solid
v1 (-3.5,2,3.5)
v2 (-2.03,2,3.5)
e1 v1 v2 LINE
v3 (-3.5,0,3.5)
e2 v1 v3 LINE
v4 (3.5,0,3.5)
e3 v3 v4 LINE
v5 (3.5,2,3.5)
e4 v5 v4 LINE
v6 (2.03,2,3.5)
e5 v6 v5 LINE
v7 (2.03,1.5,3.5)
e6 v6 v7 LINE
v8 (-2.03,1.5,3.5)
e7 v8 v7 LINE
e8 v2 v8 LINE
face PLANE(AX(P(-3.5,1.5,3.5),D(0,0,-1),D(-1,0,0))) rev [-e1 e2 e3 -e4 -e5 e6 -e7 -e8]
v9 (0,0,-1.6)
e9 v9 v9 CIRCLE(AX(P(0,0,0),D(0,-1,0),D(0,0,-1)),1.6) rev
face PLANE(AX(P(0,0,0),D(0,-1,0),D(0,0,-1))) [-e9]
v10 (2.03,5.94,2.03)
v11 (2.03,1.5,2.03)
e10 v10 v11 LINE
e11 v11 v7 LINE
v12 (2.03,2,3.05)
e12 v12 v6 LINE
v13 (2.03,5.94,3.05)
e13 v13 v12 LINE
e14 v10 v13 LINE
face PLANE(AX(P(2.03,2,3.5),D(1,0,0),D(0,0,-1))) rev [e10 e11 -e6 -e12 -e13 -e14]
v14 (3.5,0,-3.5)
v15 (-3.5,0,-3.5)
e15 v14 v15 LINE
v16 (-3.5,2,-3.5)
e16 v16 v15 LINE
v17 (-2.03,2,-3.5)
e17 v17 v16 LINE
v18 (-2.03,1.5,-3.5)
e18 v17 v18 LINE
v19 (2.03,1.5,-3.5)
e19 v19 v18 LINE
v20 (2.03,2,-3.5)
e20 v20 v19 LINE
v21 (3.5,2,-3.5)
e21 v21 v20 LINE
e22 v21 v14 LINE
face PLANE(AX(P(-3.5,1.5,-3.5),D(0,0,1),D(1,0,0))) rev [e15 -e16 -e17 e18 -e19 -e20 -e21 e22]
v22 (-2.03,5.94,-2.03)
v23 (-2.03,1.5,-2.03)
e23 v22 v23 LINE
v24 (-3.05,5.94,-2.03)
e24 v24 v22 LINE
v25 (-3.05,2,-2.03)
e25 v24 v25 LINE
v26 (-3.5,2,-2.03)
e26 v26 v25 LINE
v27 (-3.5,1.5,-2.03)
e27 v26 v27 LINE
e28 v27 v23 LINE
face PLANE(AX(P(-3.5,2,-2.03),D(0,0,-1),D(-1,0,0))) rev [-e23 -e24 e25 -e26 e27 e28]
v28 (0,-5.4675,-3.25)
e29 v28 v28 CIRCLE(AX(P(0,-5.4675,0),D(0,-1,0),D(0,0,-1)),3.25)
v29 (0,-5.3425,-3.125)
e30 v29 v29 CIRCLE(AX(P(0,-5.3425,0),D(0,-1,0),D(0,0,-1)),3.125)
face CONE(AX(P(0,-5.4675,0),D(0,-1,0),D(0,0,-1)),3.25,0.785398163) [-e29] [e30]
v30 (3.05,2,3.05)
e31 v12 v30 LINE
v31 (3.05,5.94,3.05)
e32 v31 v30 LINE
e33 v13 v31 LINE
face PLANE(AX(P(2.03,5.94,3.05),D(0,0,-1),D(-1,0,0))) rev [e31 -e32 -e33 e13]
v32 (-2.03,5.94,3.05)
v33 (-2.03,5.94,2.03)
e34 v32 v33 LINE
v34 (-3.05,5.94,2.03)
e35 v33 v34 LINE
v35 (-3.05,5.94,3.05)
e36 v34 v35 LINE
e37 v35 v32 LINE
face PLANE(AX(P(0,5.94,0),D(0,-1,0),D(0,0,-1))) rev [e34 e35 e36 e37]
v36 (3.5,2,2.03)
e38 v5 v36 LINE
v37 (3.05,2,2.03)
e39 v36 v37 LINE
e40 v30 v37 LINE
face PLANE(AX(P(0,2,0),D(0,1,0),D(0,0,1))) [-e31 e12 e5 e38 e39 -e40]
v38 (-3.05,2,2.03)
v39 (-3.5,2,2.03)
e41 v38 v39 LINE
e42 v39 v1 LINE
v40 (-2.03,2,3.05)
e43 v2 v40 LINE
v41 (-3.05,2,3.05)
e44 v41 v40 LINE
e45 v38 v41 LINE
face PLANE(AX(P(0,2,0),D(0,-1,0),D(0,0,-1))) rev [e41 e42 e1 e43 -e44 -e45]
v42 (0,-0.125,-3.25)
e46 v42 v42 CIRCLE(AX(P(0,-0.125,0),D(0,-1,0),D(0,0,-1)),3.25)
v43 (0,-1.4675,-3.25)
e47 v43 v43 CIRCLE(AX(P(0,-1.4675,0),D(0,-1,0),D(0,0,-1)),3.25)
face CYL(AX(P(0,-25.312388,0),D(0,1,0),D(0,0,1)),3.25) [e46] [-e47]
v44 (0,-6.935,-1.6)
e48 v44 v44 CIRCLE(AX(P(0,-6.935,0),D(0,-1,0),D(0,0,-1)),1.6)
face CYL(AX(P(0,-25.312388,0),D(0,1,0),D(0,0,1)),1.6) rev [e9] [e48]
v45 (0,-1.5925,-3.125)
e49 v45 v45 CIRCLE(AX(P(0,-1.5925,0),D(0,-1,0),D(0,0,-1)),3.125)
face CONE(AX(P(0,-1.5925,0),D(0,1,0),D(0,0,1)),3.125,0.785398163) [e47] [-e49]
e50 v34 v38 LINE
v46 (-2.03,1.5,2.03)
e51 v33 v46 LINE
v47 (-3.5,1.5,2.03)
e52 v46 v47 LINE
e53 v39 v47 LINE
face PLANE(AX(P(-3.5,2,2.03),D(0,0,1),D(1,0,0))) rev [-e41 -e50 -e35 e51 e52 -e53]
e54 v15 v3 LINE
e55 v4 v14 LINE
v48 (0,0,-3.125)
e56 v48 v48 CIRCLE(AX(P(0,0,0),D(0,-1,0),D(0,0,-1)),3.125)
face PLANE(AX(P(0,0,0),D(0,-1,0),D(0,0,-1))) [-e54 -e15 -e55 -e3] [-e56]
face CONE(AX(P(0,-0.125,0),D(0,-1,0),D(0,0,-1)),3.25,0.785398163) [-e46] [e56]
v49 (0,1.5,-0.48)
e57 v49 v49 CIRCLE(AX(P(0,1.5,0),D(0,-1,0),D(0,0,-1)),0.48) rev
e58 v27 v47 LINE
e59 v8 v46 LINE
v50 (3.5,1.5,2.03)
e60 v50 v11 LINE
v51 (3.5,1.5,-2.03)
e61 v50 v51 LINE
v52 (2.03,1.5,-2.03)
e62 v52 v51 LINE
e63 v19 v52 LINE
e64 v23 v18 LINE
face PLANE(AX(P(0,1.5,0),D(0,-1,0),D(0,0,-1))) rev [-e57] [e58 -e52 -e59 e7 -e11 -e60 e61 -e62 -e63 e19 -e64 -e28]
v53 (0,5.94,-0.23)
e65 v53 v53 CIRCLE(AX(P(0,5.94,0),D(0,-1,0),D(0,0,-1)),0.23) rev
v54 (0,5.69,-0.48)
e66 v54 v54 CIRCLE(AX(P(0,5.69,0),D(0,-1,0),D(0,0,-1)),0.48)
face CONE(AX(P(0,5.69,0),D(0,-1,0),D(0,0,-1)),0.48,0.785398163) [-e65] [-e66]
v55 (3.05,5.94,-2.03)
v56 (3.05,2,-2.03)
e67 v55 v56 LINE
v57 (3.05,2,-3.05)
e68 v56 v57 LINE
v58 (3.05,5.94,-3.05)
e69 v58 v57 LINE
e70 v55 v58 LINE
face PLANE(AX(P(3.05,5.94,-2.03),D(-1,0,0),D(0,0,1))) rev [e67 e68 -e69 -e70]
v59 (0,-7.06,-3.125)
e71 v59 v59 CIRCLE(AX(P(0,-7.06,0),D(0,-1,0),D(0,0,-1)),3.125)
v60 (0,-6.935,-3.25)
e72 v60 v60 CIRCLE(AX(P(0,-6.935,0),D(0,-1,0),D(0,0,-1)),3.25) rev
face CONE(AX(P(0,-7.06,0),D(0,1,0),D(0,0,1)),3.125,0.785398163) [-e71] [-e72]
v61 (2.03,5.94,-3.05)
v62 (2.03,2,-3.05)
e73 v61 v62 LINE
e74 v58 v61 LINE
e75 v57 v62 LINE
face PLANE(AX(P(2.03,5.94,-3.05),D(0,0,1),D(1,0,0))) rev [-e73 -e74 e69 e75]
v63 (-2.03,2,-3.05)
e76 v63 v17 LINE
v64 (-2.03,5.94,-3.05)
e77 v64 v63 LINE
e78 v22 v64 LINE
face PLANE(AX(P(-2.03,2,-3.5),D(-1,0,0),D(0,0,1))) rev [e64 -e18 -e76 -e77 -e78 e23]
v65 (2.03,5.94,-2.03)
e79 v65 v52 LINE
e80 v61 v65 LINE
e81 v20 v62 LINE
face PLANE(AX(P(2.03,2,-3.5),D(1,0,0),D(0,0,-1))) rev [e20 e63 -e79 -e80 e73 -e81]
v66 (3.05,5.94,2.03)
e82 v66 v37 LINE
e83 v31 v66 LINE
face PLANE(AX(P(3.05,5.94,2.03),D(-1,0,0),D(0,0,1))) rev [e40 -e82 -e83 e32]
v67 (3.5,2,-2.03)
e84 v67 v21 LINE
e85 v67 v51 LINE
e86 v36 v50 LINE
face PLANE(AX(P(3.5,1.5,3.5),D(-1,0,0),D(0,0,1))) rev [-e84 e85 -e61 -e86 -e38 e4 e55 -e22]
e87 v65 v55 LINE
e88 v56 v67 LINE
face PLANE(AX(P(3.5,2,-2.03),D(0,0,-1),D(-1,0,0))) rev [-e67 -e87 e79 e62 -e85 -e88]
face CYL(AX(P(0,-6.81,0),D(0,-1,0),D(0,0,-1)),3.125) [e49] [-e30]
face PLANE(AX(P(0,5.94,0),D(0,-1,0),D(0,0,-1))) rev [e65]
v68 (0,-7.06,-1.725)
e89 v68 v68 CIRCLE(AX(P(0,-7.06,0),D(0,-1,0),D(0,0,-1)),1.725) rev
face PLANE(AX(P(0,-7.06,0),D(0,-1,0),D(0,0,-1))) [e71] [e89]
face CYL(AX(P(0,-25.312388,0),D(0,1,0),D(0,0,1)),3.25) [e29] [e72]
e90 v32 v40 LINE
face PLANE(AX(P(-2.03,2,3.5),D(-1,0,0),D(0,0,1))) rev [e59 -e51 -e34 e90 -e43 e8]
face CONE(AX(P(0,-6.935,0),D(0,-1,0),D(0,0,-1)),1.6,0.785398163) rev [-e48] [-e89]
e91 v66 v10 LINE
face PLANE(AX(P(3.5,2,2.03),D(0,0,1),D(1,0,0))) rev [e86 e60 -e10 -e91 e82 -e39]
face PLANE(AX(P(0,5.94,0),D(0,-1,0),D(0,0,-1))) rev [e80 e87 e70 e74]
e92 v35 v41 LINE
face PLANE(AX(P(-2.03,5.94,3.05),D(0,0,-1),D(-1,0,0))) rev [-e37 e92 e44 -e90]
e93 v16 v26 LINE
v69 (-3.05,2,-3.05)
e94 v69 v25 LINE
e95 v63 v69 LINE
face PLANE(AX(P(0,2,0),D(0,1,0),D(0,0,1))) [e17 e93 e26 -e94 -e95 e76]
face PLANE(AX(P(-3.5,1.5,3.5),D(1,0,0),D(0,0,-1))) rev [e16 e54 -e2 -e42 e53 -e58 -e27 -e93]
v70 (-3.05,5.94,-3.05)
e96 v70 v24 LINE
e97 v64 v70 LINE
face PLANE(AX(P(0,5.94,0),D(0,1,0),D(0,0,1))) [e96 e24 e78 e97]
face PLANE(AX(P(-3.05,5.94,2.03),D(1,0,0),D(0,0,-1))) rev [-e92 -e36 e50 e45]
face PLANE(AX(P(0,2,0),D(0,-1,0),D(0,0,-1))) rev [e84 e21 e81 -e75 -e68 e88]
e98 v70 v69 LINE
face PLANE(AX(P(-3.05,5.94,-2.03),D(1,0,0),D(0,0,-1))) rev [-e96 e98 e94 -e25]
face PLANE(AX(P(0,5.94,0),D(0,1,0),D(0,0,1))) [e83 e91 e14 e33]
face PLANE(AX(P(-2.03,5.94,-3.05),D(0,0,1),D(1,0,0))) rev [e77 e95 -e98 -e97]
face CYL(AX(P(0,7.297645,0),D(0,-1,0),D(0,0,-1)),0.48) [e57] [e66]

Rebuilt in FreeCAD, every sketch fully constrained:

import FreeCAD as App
import Part
import Sketcher

V = App.Vector
Q = App.Units.Quantity


def edges_at(feature, points):
    """Names of the edges that pass closest to the given points."""
    edges = feature.Shape.Edges
    near = lambda p: min(range(len(edges)), key=lambda i: edges[i].distToShape(Part.Vertex(*p))[0])
    return sorted({f"Edge{near(p) + 1}" for p in points})

doc = App.newDocument("Part")
params = doc.addObject("Spreadsheet::Sheet", "Params")
for row, (alias, value) in enumerate([
    ("sketch1_width", "7 mm"),
    ("pad1_length", "1.5 mm"),
    ("sketch2_width", "1.47 mm"),
    ("pad2_length", "0.5 mm"),
    ("sketch3_width", "1.02 mm"),
    ("pad3_length", "3.94 mm"),
    ("sketch4_diameter", "6.5 mm"),
    ("sketch4_diameter2", "3.2 mm"),
    ("pad4_length", "7.06 mm"),
    ("chamfer_size", "0.125 mm"),
    ("sketch5_height", "4 mm"),
    ("sketch5_height2", "3.75 mm"),
    ("groove_angle", "360 deg"),
    ("sketch6_diameter", "0.96 mm"),
    ("pad5_length", "4.44 mm"),
    ("chamfer2_size", "0.25 mm"),
], start=1):
    params.set(f"A{row}", alias)
    params.set(f"B{row}", "=" + value)
    params.setAlias(f"B{row}", alias)

body = doc.addObject("PartDesign::Body", "Body")

sketch1 = body.newObject("Sketcher::SketchObject", "Sketch")
sketch1.AttachmentSupport = (doc.getObject("XZ_Plane"), [""])
sketch1.MapMode = "FlatFace"
sketch1.addGeometry([
    Part.LineSegment(V(-4, -4, 0), V(-4, 4, 0)),
    Part.LineSegment(V(-4, 4, 0), V(4, 4, 0)),
    Part.LineSegment(V(4, 4, 0), V(4, -4, 0)),
    Part.LineSegment(V(4, -4, 0), V(-4, -4, 0)),
], False)
sketch1.addConstraint([
    Sketcher.Constraint("Coincident", 0, 2, 1, 1),
    Sketcher.Constraint("Coincident", 1, 2, 2, 1),
    Sketcher.Constraint("Coincident", 2, 2, 3, 1),
    Sketcher.Constraint("Coincident", 3, 2, 0, 1),
    Sketcher.Constraint("Vertical", 0),
    Sketcher.Constraint("Horizontal", 1),
    Sketcher.Constraint("Vertical", 2),
    Sketcher.Constraint("Horizontal", 3),
    Sketcher.Constraint("Symmetric", 0, 2, 2, 2, -1, 1),
    Sketcher.Constraint("Equal", 3, 0),
    Sketcher.Constraint("DistanceX", 1, 1, 1, 2, Q("7 mm")),
])
sketch1.setExpression("Constraints[10]", "Params.sketch1_width")
pad1 = body.newObject("PartDesign::Pad", "Pad")
pad1.Profile = sketch1
pad1.setExpression("Length", "Params.pad1_length")
pad1.Reversed = True

sketch2 = body.newObject("Sketcher::SketchObject", "Sketch001")
sketch2.AttachmentSupport = (doc.getObject("XZ_Plane"), [""])
sketch2.MapMode = "FlatFace"
sketch2.AttachmentOffset = App.Placement(V(0, 0, -1.5), App.Rotation())
sketch2.addGeometry([
    Part.LineSegment(V(-3.5, -3.5, 0), V(-3.5, -2, 0)),
    Part.LineSegment(V(-3.5, -2, 0), V(-2, -2, 0)),
    Part.LineSegment(V(-2, -2, 0), V(-2, -3.5, 0)),
    Part.LineSegment(V(-2, -3.5, 0), V(-3.5, -3.5, 0)),
    Part.LineSegment(V(2, -3.5, 0), V(2, -2, 0)),
    Part.LineSegment(V(2, -2, 0), V(3.5, -2, 0)),
    Part.LineSegment(V(3.5, -2, 0), V(3.5, -3.5, 0)),
    Part.LineSegment(V(3.5, -3.5, 0), V(2, -3.5, 0)),
    Part.LineSegment(V(2, 2, 0), V(2, 3.5, 0)),
    Part.LineSegment(V(2, 3.5, 0), V(3.5, 3.5, 0)),
    Part.LineSegment(V(3.5, 3.5, 0), V(3.5, 2, 0)),
    Part.LineSegment(V(3.5, 2, 0), V(2, 2, 0)),
    Part.LineSegment(V(-3.5, 2, 0), V(-3.5, 3.5, 0)),
    Part.LineSegment(V(-3.5, 3.5, 0), V(-2, 3.5, 0)),
    Part.LineSegment(V(-2, 3.5, 0), V(-2, 2, 0)),
    Part.LineSegment(V(-2, 2, 0), V(-3.5, 2, 0)),
], False)
sketch2.addConstraint([
    Sketcher.Constraint("Coincident", 0, 2, 1, 1),
    Sketcher.Constraint("Coincident", 1, 2, 2, 1),
    Sketcher.Constraint("Coincident", 2, 2, 3, 1),
    Sketcher.Constraint("Coincident", 3, 2, 0, 1),
    Sketcher.Constraint("Coincident", 4, 2, 5, 1),
    Sketcher.Constraint("Coincident", 5, 2, 6, 1),
    Sketcher.Constraint("Coincident", 6, 2, 7, 1),
    Sketcher.Constraint("Coincident", 7, 2, 4, 1),
    Sketcher.Constraint("Coincident", 8, 2, 9, 1),
    Sketcher.Constraint("Coincident", 9, 2, 10, 1),
    Sketcher.Constraint("Coincident", 10, 2, 11, 1),
    Sketcher.Constraint("Coincident", 11, 2, 8, 1),
    Sketcher.Constraint("Coincident", 12, 2, 13, 1),
    Sketcher.Constraint("Coincident", 13, 2, 14, 1),
    Sketcher.Constraint("Coincident", 14, 2, 15, 1),
    Sketcher.Constraint("Coincident", 15, 2, 12, 1),
    Sketcher.Constraint("Vertical", 0),
    Sketcher.Constraint("Horizontal", 1),
    Sketcher.Constraint("Vertical", 2),
    Sketcher.Constraint("Horizontal", 3),
    Sketcher.Constraint("Vertical", 4),
    Sketcher.Constraint("Horizontal", 5),
    Sketcher.Constraint("Vertical", 6),
    Sketcher.Constraint("Horizontal", 7),
    Sketcher.Constraint("Vertical", 8),
    Sketcher.Constraint("Horizontal", 9),
    Sketcher.Constraint("Vertical", 10),
    Sketcher.Constraint("Horizontal", 11),
    Sketcher.Constraint("Vertical", 12),
    Sketcher.Constraint("Horizontal", 13),
    Sketcher.Constraint("Vertical", 14),
    Sketcher.Constraint("Horizontal", 15),
    Sketcher.Constraint("Symmetric", 2, 2, 8, 2, -1, 1),
    Sketcher.Constraint("Symmetric", 0, 2, 10, 2, -1, 1),
    Sketcher.Constraint("Symmetric", 6, 2, 12, 2, -1, 1),
    Sketcher.Constraint("Symmetric", 4, 2, 14, 2, -1, 1),
    Sketcher.Constraint("Symmetric", 1, 2, 4, 2, -2),
    Sketcher.Constraint("Symmetric", 3, 2, 6, 2, -2),
    Sketcher.Constraint("Equal", 15, 0),
    Sketcher.Constraint("DistanceX", 0, 2, 5, 2, Q("7 mm")),
    Sketcher.Constraint("DistanceY", 7, 2, 8, 2, Q("7 mm")),
    Sketcher.Constraint("DistanceX", 1, 1, 1, 2, Q("1.47 mm")),
])
sketch2.setExpression("Constraints[41]", "Params.sketch2_width")
pad2 = body.newObject("PartDesign::Pad", "Pad001")
pad2.Profile = sketch2
pad2.setExpression("Length", "Params.pad2_length")
pad2.Reversed = True

sketch3 = body.newObject("Sketcher::SketchObject", "Sketch002")
sketch3.AttachmentSupport = (doc.getObject("XZ_Plane"), [""])
sketch3.MapMode = "FlatFace"
sketch3.AttachmentOffset = App.Placement(V(0, 0, -2), App.Rotation())
sketch3.addGeometry([
    Part.LineSegment(V(-3, 2, 0), V(-3, 3, 0)),
    Part.LineSegment(V(-3, 3, 0), V(-2, 3, 0)),
    Part.LineSegment(V(-2, 3, 0), V(-2, 2, 0)),
    Part.LineSegment(V(-2, 2, 0), V(-3, 2, 0)),
    Part.LineSegment(V(2, 2, 0), V(2, 3, 0)),
    Part.LineSegment(V(2, 3, 0), V(3, 3, 0)),
    Part.LineSegment(V(3, 3, 0), V(3, 2, 0)),
    Part.LineSegment(V(3, 2, 0), V(2, 2, 0)),
    Part.LineSegment(V(2, -3, 0), V(2, -2, 0)),
    Part.LineSegment(V(2, -2, 0), V(3, -2, 0)),
    Part.LineSegment(V(3, -2, 0), V(3, -3, 0)),
    Part.LineSegment(V(3, -3, 0), V(2, -3, 0)),
    Part.LineSegment(V(-3, -3, 0), V(-3, -2, 0)),
    Part.LineSegment(V(-3, -2, 0), V(-2, -2, 0)),
    Part.LineSegment(V(-2, -2, 0), V(-2, -3, 0)),
    Part.LineSegment(V(-2, -3, 0), V(-3, -3, 0)),
], False)
sketch3.addConstraint([
    Sketcher.Constraint("Coincident", 0, 2, 1, 1),
    Sketcher.Constraint("Coincident", 1, 2, 2, 1),
    Sketcher.Constraint("Coincident", 2, 2, 3, 1),
    Sketcher.Constraint("Coincident", 3, 2, 0, 1),
    Sketcher.Constraint("Coincident", 4, 2, 5, 1),
    Sketcher.Constraint("Coincident", 5, 2, 6, 1),
    Sketcher.Constraint("Coincident", 6, 2, 7, 1),
    Sketcher.Constraint("Coincident", 7, 2, 4, 1),
    Sketcher.Constraint("Coincident", 8, 2, 9, 1),
    Sketcher.Constraint("Coincident", 9, 2, 10, 1),
    Sketcher.Constraint("Coincident", 10, 2, 11, 1),
    Sketcher.Constraint("Coincident", 11, 2, 8, 1),
    Sketcher.Constraint("Coincident", 12, 2, 13, 1),
    Sketcher.Constraint("Coincident", 13, 2, 14, 1),
    Sketcher.Constraint("Coincident", 14, 2, 15, 1),
    Sketcher.Constraint("Coincident", 15, 2, 12, 1),
    Sketcher.Constraint("Vertical", 0),
    Sketcher.Constraint("Horizontal", 1),
    Sketcher.Constraint("Vertical", 2),
    Sketcher.Constraint("Horizontal", 3),
    Sketcher.Constraint("Vertical", 4),
    Sketcher.Constraint("Horizontal", 5),
    Sketcher.Constraint("Vertical", 6),
    Sketcher.Constraint("Horizontal", 7),
    Sketcher.Constraint("Vertical", 8),
    Sketcher.Constraint("Horizontal", 9),
    Sketcher.Constraint("Vertical", 10),
    Sketcher.Constraint("Horizontal", 11),
    Sketcher.Constraint("Vertical", 12),
    Sketcher.Constraint("Horizontal", 13),
    Sketcher.Constraint("Vertical", 14),
    Sketcher.Constraint("Horizontal", 15),
    Sketcher.Constraint("Symmetric", 2, 2, 8, 2, -1, 1),
    Sketcher.Constraint("Symmetric", 0, 2, 10, 2, -1, 1),
    Sketcher.Constraint("Symmetric", 6, 2, 12, 2, -1, 1),
    Sketcher.Constraint("Symmetric", 4, 2, 14, 2, -1, 1),
    Sketcher.Constraint("Symmetric", 1, 2, 4, 2, -2),
    Sketcher.Constraint("Symmetric", 3, 2, 6, 2, -2),
    Sketcher.Constraint("Equal", 15, 0),
    Sketcher.Constraint("DistanceX", 1, 1, 1, 2, Q("1.02 mm")),
    Sketcher.Constraint("DistanceX", 0, 2, 5, 2, Q("6.1 mm")),
    Sketcher.Constraint("DistanceY", 10, 2, 5, 2, Q("6.1 mm")),
])
sketch3.setExpression("Constraints[39]", "Params.sketch3_width")
pad3 = body.newObject("PartDesign::Pad", "Pad002")
pad3.Profile = sketch3
pad3.setExpression("Length", "Params.pad3_length")
pad3.Reversed = True

sketch4 = body.newObject("Sketcher::SketchObject", "Sketch003")
sketch4.AttachmentSupport = (doc.getObject("XZ_Plane"), [""])
sketch4.MapMode = "FlatFace"
sketch4.addGeometry([
    Part.Circle(V(0, 0, 0), V(0, 0, 1), 3.2),
    Part.Circle(V(0, 0, 0), V(0, 0, 1), 1.6),
], False)
sketch4.addConstraint([
    Sketcher.Constraint("Coincident", 0, 3, -1, 1),
    Sketcher.Constraint("Coincident", 1, 3, -1, 1),
    Sketcher.Constraint("Diameter", 0, Q("6.5 mm")),
    Sketcher.Constraint("Diameter", 1, Q("3.2 mm")),
])
sketch4.setExpression("Constraints[2]", "Params.sketch4_diameter")
sketch4.setExpression("Constraints[3]", "Params.sketch4_diameter2")
pad4 = body.newObject("PartDesign::Pad", "Pad003")
pad4.Profile = sketch4
pad4.setExpression("Length", "Params.pad4_length")
doc.recompute()

chamfer = body.newObject("PartDesign::Chamfer", "Chamfer")
chamfer.Base = (pad4, edges_at(pad4, [(0, -7.06, 1.6), (0, -7.06, 3.25)]))
chamfer.setExpression("Size", "Params.chamfer_size")

sketch5 = body.newObject("Sketcher::SketchObject", "Sketch004")
sketch5.AttachmentSupport = (doc.getObject("XY_Plane"), [""])
sketch5.MapMode = "FlatFace"
sketch5.addGeometry([
    Part.LineSegment(V(-3.12, -1.59, 0), V(-3.25, -1.47, 0)),
    Part.LineSegment(V(-3.25, -1.47, 0), V(-3.25, -5.47, 0)),
    Part.LineSegment(V(-3.25, -5.47, 0), V(-3.12, -5.34, 0)),
    Part.LineSegment(V(-3.12, -5.34, 0), V(-3.12, -1.59, 0)),
    Part.LineSegment(V(-3.12, 0, 0), V(-3.25, 0, 0)),
    Part.LineSegment(V(-3.25, 0, 0), V(-3.25, -0.12, 0)),
    Part.LineSegment(V(-3.25, -0.12, 0), V(-3.12, 0, 0)),
], False)
sketch5.addConstraint([
    Sketcher.Constraint("Coincident", 0, 2, 1, 1),
    Sketcher.Constraint("Coincident", 1, 2, 2, 1),
    Sketcher.Constraint("Coincident", 2, 2, 3, 1),
    Sketcher.Constraint("Coincident", 3, 2, 0, 1),
    Sketcher.Constraint("Coincident", 4, 2, 5, 1),
    Sketcher.Constraint("Coincident", 5, 2, 6, 1),
    Sketcher.Constraint("Coincident", 6, 2, 4, 1),
    Sketcher.Constraint("Vertical", 1),
    Sketcher.Constraint("Vertical", 3),
    Sketcher.Constraint("Horizontal", 4),
    Sketcher.Constraint("Vertical", 5),
    Sketcher.Constraint("PointOnObject", 4, 2, -1),
    Sketcher.Constraint("Perpendicular", 0, 2),
    Sketcher.Constraint("Parallel", 2, 6),
    Sketcher.Constraint("Vertical", 1, 2, 4, 2),
    Sketcher.Constraint("Vertical", 3, 2, 6, 2),
    Sketcher.Constraint("Equal", 4, 5),
    Sketcher.Constraint("DistanceY", 1, 2, 1, 1, Q("4 mm")),
    Sketcher.Constraint("DistanceY", 3, 1, 3, 2, Q("3.75 mm")),
    Sketcher.Constraint("DistanceX", 0, 2, -1, 1, Q("3.25 mm")),
    Sketcher.Constraint("DistanceY", 0, 2, -1, 1, Q("1.4675 mm")),
])
sketch5.setExpression("Constraints[17]", "Params.sketch5_height")
sketch5.setExpression("Constraints[18]", "Params.sketch5_height2")
groove = body.newObject("PartDesign::Groove", "Groove")
groove.Profile = sketch5
groove.ReferenceAxis = (sketch5, ["V_Axis"])
groove.setExpression("Angle", "Params.groove_angle")

sketch6 = body.newObject("Sketcher::SketchObject", "Sketch005")
sketch6.AttachmentSupport = (doc.getObject("XZ_Plane"), [""])
sketch6.MapMode = "FlatFace"
sketch6.AttachmentOffset = App.Placement(V(0, 0, -1.5), App.Rotation())
sketch6.addGeometry(Part.Circle(V(0, 0, 0), V(0, 0, 1), 0.48), False)
sketch6.addConstraint([
    Sketcher.Constraint("Coincident", 0, 3, -1, 1),
    Sketcher.Constraint("Diameter", 0, Q("0.96 mm")),
])
sketch6.setExpression("Constraints[1]", "Params.sketch6_diameter")
pad5 = body.newObject("PartDesign::Pad", "Pad004")
pad5.Profile = sketch6
pad5.setExpression("Length", "Params.pad5_length")
pad5.Reversed = True
doc.recompute()

chamfer2 = body.newObject("PartDesign::Chamfer", "Chamfer001")
chamfer2.Base = (pad5, edges_at(pad5, [(0, 5.94, 0.48)]))
chamfer2.setExpression("Size", "Params.chamfer2_size")

doc.recompute()
